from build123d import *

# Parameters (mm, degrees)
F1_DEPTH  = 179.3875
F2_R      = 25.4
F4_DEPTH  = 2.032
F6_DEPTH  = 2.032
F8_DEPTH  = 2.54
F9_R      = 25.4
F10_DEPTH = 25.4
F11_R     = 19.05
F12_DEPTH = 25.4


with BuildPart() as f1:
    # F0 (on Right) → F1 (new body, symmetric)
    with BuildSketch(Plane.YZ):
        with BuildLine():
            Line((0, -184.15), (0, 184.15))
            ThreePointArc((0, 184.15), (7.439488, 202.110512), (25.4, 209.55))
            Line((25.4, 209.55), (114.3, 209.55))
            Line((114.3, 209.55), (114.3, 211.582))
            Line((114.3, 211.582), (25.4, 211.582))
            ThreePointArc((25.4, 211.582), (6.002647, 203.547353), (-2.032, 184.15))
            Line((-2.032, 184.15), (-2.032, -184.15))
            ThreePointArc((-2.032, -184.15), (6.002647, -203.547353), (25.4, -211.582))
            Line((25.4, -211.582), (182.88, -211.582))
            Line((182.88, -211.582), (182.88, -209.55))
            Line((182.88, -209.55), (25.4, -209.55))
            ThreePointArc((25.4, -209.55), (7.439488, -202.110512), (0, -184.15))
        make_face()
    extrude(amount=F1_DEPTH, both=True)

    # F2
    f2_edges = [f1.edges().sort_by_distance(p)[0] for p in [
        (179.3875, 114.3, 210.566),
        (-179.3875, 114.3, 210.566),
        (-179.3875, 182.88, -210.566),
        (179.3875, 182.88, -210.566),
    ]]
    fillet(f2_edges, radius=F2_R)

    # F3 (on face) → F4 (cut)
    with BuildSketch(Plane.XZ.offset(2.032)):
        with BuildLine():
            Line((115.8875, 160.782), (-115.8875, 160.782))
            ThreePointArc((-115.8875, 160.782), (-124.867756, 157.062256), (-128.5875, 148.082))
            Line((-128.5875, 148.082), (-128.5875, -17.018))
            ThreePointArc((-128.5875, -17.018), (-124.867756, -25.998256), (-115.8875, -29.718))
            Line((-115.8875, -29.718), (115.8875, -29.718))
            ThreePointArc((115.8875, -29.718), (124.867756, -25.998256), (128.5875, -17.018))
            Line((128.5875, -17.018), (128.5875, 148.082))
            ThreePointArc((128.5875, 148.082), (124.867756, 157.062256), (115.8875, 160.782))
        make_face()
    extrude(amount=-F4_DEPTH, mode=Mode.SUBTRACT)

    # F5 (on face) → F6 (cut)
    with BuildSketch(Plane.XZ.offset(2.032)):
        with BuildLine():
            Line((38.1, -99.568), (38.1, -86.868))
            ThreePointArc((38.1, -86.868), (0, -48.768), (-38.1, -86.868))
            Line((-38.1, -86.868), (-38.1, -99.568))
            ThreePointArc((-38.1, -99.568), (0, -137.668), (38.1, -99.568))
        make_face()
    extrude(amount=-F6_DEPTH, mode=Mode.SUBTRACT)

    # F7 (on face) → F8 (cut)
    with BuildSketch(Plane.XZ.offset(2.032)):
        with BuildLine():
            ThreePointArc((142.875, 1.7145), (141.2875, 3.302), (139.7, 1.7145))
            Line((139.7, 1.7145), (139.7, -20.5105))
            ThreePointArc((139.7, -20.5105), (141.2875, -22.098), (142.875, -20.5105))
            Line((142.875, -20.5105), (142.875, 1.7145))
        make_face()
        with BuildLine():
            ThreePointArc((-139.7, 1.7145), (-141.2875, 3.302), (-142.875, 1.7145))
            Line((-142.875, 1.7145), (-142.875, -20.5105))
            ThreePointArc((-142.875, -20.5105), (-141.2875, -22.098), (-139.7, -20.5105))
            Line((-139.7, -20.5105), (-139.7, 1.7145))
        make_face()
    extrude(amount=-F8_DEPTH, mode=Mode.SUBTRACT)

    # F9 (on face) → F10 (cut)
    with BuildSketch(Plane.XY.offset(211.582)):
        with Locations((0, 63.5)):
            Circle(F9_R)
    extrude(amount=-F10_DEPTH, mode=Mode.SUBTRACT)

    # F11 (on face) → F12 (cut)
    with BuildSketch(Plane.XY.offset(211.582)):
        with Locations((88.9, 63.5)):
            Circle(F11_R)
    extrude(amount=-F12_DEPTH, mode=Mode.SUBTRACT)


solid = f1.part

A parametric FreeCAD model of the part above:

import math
import FreeCAD as App
import Part
import Sketcher
Q = App.Units.Quantity


def edges_at(feature, points):
    """Names of the edges that pass closest to the given points."""
    edges = feature.Shape.Edges
    near = lambda p: min(range(len(edges)), key=lambda i: edges[i].distToShape(Part.Vertex(*p))[0])
    return sorted({f"Edge{near(p) + 1}" for p in points})

doc = App.newDocument("Part")
body = doc.addObject("PartDesign::Body", "Body")

# Sketch on YZ plane
sketch1 = body.newObject("Sketcher::SketchObject", "Sketch")
sketch1.AttachmentSupport = (doc.getObject("YZ_Plane"), [""])
sketch1.MapMode = "FlatFace"
sketch1.addGeometry(Part.LineSegment(App.Vector(0, -184.15, 0), App.Vector(0, 184.15, 0)), False)
sketch1.addGeometry(Part.ArcOfCircle(Part.Circle(App.Vector(25.400001, 184.149999, 0), App.Vector(0, 0, 1), 25.400001), math.radians(90.000002), math.radians(179.999998)), False)
sketch1.addGeometry(Part.LineSegment(App.Vector(25.4, 209.55, 0), App.Vector(114.3, 209.55, 0)), False)
sketch1.addGeometry(Part.LineSegment(App.Vector(114.3, 209.55, 0), App.Vector(114.3, 211.582, 0)), False)
sketch1.addGeometry(Part.LineSegment(App.Vector(114.3, 211.582, 0), App.Vector(25.4, 211.582, 0)), False)
sketch1.addGeometry(Part.ArcOfCircle(Part.Circle(App.Vector(25.400001, 184.149999, 0), App.Vector(0, 0, 1), 27.432001), math.radians(90.000002), math.radians(179.999998)), False)
sketch1.addGeometry(Part.LineSegment(App.Vector(-2.032, 184.15, 0), App.Vector(-2.032, -184.15, 0)), False)
sketch1.addGeometry(Part.ArcOfCircle(Part.Circle(App.Vector(25.400001, -184.149999, 0), App.Vector(0, 0, 1), 27.432001), math.radians(-179.999998), math.radians(-90.000002)), False)
sketch1.addGeometry(Part.LineSegment(App.Vector(25.4, -211.582, 0), App.Vector(182.88, -211.582, 0)), False)
sketch1.addGeometry(Part.LineSegment(App.Vector(182.88, -211.582, 0), App.Vector(182.88, -209.55, 0)), False)
sketch1.addGeometry(Part.LineSegment(App.Vector(182.88, -209.55, 0), App.Vector(25.4, -209.55, 0)), False)
sketch1.addGeometry(Part.ArcOfCircle(Part.Circle(App.Vector(25.400001, -184.149999, 0), App.Vector(0, 0, 1), 25.400001), math.radians(-179.999998), math.radians(-90.000002)), False)
sketch1.addConstraint(Sketcher.Constraint("Tangent", 0, 2, 1, 2))
sketch1.addConstraint(Sketcher.Constraint("Tangent", 1, 1, 2, 1))
sketch1.addConstraint(Sketcher.Constraint("Coincident", 2, 2, 3, 1))
sketch1.addConstraint(Sketcher.Constraint("Coincident", 3, 2, 4, 1))
sketch1.addConstraint(Sketcher.Constraint("Tangent", 4, 2, 5, 1))
sketch1.addConstraint(Sketcher.Constraint("Tangent", 5, 2, 6, 1))
sketch1.addConstraint(Sketcher.Constraint("Tangent", 6, 2, 7, 1))
sketch1.addConstraint(Sketcher.Constraint("Tangent", 7, 2, 8, 1))
sketch1.addConstraint(Sketcher.Constraint("Coincident", 8, 2, 9, 1))
sketch1.addConstraint(Sketcher.Constraint("Coincident", 9, 2, 10, 1))
sketch1.addConstraint(Sketcher.Constraint("Tangent", 10, 2, 11, 2))
sketch1.addConstraint(Sketcher.Constraint("Tangent", 11, 1, 0, 1))
sketch1.addConstraint(Sketcher.Constraint("Vertical", 0))
sketch1.addConstraint(Sketcher.Constraint("Horizontal", 2))
sketch1.addConstraint(Sketcher.Constraint("Vertical", 3))
sketch1.addConstraint(Sketcher.Constraint("Horizontal", 4))
sketch1.addConstraint(Sketcher.Constraint("Vertical", 6))
sketch1.addConstraint(Sketcher.Constraint("Horizontal", 8))
sketch1.addConstraint(Sketcher.Constraint("Vertical", 9))
sketch1.addConstraint(Sketcher.Constraint("Horizontal", 10))
sketch1.addConstraint(Sketcher.Constraint("Coincident", 5, 3, 1, 3))
sketch1.addConstraint(Sketcher.Constraint("Coincident", 11, 3, 7, 3))
sketch1.addConstraint(Sketcher.Constraint("Equal", 5, 7))
sketch1.addConstraint(Sketcher.Constraint("Symmetric", 0, 2, 11, 1, -1, 1))
sketch1.addConstraint(Sketcher.Constraint("Radius", 1, Q("1 in")))
sketch1.addConstraint(Sketcher.Constraint("Radius", 5, Q("1.08 in")))
sketch1.addConstraint(Sketcher.Constraint("DistanceX", 2, 1, 2, 2, Q("3.5 in")))
sketch1.addConstraint(Sketcher.Constraint("DistanceX", 8, 1, 8, 2, Q("6.2 in")))
sketch1.addConstraint(Sketcher.Constraint("DistanceY", 0, 1, 0, 2, Q("14.5 in")))
pad1 = body.newObject("PartDesign::Pad", "Pad")
pad1.Profile = sketch1
pad1.Length = Q("14.125 in")
pad1.Midplane = True
doc.recompute()

fillet = body.newObject("PartDesign::Fillet", "Fillet")
fillet.Base = (pad1, edges_at(pad1, [
    (179.387, 114.3, 210.566),
    (-179.387, 114.3, 210.566),
    (-179.387, 182.88, -210.566),
    (179.387, 182.88, -210.566),
]))
fillet.Radius = Q("1 in")

# Sketch on XZ plane
sketch2 = body.newObject("Sketcher::SketchObject", "Sketch001")
sketch2.AttachmentSupport = (doc.getObject("XZ_Plane"), [""])
sketch2.MapMode = "FlatFace"
sketch2.AttachmentOffset = App.Placement(App.Vector(0, 0, 0.08 * 25.4), App.Rotation())
sketch2.addGeometry(Part.LineSegment(App.Vector(115.8875, 160.782, 0), App.Vector(-115.8875, 160.782, 0)), False)
sketch2.addGeometry(Part.ArcOfCircle(Part.Circle(App.Vector(-115.8875, 148.082, 0), App.Vector(0, 0, 1), 12.7), math.radians(90.000002), math.radians(179.999998)), False)
sketch2.addGeometry(Part.LineSegment(App.Vector(-128.5875, 148.082, 0), App.Vector(-128.5875, -17.018, 0)), False)
sketch2.addGeometry(Part.ArcOfCircle(Part.Circle(App.Vector(-115.8875, -17.018, 0), App.Vector(0, 0, 1), 12.7), math.radians(-179.999998), math.radians(-90.000002)), False)
sketch2.addGeometry(Part.LineSegment(App.Vector(-115.8875, -29.718, 0), App.Vector(115.8875, -29.718, 0)), False)
sketch2.addGeometry(Part.ArcOfCircle(Part.Circle(App.Vector(115.8875, -17.018, 0), App.Vector(0, 0, 1), 12.7), math.radians(-89.999998), math.radians(-0.000002)), False)
sketch2.addGeometry(Part.LineSegment(App.Vector(128.5875, -17.018, 0), App.Vector(128.5875, 148.082, 0)), False)
sketch2.addGeometry(Part.ArcOfCircle(Part.Circle(App.Vector(115.8875, 148.082, 0), App.Vector(0, 0, 1), 12.7), math.radians(0.000002), math.radians(89.999998)), False)
sketch2.addConstraint(Sketcher.Constraint("Tangent", 0, 2, 1, 1))
sketch2.addConstraint(Sketcher.Constraint("Tangent", 1, 2, 2, 1))
sketch2.addConstraint(Sketcher.Constraint("Tangent", 2, 2, 3, 1))
sketch2.addConstraint(Sketcher.Constraint("Tangent", 3, 2, 4, 1))
sketch2.addConstraint(Sketcher.Constraint("Tangent", 4, 2, 5, 1))
sketch2.addConstraint(Sketcher.Constraint("Tangent", 5, 2, 6, 1))
sketch2.addConstraint(Sketcher.Constraint("Tangent", 6, 2, 7, 1))
sketch2.addConstraint(Sketcher.Constraint("Tangent", 7, 2, 0, 1))
sketch2.addConstraint(Sketcher.Constraint("Horizontal", 0))
sketch2.addConstraint(Sketcher.Constraint("Vertical", 2))
sketch2.addConstraint(Sketcher.Constraint("Horizontal", 4))
sketch2.addConstraint(Sketcher.Constraint("Vertical", 6))
sketch2.addConstraint(Sketcher.Constraint("Equal", 1, 3))
sketch2.addConstraint(Sketcher.Constraint("Equal", 3, 5))
sketch2.addConstraint(Sketcher.Constraint("Equal", 5, 7))
sketch2.addConstraint(Sketcher.Constraint("Radius", 1, Q("0.5 in")))
sketch2.addConstraint(Sketcher.Constraint("DistanceY", 2, 2, 2, 1, Q("6.5 in")))
sketch2.addConstraint(Sketcher.Constraint("DistanceX", 0, 2, 0, 1, Q("9.125 in")))
sketch2.addConstraint(Sketcher.Constraint("DistanceY", -1, 1, 1, 3, Q("5.83 in")))
sketch2.addConstraint(Sketcher.Constraint("DistanceX", 1, 3, -1, 1, Q("4.5625 in")))
pocket1 = body.newObject("PartDesign::Pocket", "Pocket")
pocket1.Profile = sketch2
pocket1.Length = Q("0.08 in")

# Sketch on XZ plane
sketch3 = body.newObject("Sketcher::SketchObject", "Sketch002")
sketch3.AttachmentSupport = (doc.getObject("XZ_Plane"), [""])
sketch3.MapMode = "FlatFace"
sketch3.AttachmentOffset = App.Placement(App.Vector(0, 0, 0.08 * 25.4), App.Rotation())
sketch3.addGeometry(Part.LineSegment(App.Vector(38.1, -99.568, 0), App.Vector(38.1, -86.868, 0)), False)
sketch3.addGeometry(Part.ArcOfCircle(Part.Circle(App.Vector(0, -86.868, 0), App.Vector(0, 0, 1), 38.1), math.radians(0), math.radians(180)), False)
sketch3.addGeometry(Part.LineSegment(App.Vector(-38.1, -86.868, 0), App.Vector(-38.1, -99.568, 0)), False)
sketch3.addGeometry(Part.ArcOfCircle(Part.Circle(App.Vector(0, -99.568, 0), App.Vector(0, 0, 1), 38.1), math.radians(180), math.radians(360)), False)
sketch3.addConstraint(Sketcher.Constraint("Tangent", 0, 2, 1, 1))
sketch3.addConstraint(Sketcher.Constraint("Tangent", 1, 2, 2, 1))
sketch3.addConstraint(Sketcher.Constraint("Tangent", 2, 2, 3, 1))
sketch3.addConstraint(Sketcher.Constraint("Tangent", 3, 2, 0, 1))
sketch3.addConstraint(Sketcher.Constraint("Vertical", 0))
sketch3.addConstraint(Sketcher.Constraint("Vertical", 2))
sketch3.addConstraint(Sketcher.Constraint("PointOnObject", 1, 3, -2))
sketch3.addConstraint(Sketcher.Constraint("Radius", 1, Q("1.5 in")))
sketch3.addConstraint(Sketcher.Constraint("DistanceY", 0, 1, 0, 2, Q("0.5 in")))
sketch3.addConstraint(Sketcher.Constraint("DistanceY", 1, 3, -1, 1, Q("3.42 in")))
pocket2 = body.newObject("PartDesign::Pocket", "Pocket001")
pocket2.Profile = sketch3
pocket2.Length = Q("0.08 in")

# Sketch on XZ plane
sketch4 = body.newObject("Sketcher::SketchObject", "Sketch003")
sketch4.AttachmentSupport = (doc.getObject("XZ_Plane"), [""])
sketch4.MapMode = "FlatFace"
sketch4.AttachmentOffset = App.Placement(App.Vector(0, 0, 0.08 * 25.4), App.Rotation())
sketch4.addGeometry(Part.ArcOfCircle(Part.Circle(App.Vector(141.2875, 1.7145, 0), App.Vector(0, 0, 1), 1.5875), math.radians(0), math.radians(180)), False)
sketch4.addGeometry(Part.LineSegment(App.Vector(139.7, 1.7145, 0), App.Vector(139.7, -20.5105, 0)), False)
sketch4.addGeometry(Part.ArcOfCircle(Part.Circle(App.Vector(141.2875, -20.5105, 0), App.Vector(0, 0, 1), 1.5875), math.radians(180), math.radians(360)), False)
sketch4.addGeometry(Part.LineSegment(App.Vector(142.875, -20.5105, 0), App.Vector(142.875, 1.7145, 0)), False)
sketch4.addGeometry(Part.ArcOfCircle(Part.Circle(App.Vector(-141.2875, 1.7145, 0), App.Vector(0, 0, 1), 1.5875), math.radians(0), math.radians(180)), False)
sketch4.addGeometry(Part.LineSegment(App.Vector(-142.875, 1.7145, 0), App.Vector(-142.875, -20.5105, 0)), False)
sketch4.addGeometry(Part.ArcOfCircle(Part.Circle(App.Vector(-141.2875, -20.5105, 0), App.Vector(0, 0, 1), 1.5875), math.radians(180), math.radians(360)), False)
sketch4.addGeometry(Part.LineSegment(App.Vector(-139.7, -20.5105, 0), App.Vector(-139.7, 1.7145, 0)), False)
sketch4.addConstraint(Sketcher.Constraint("Tangent", 0, 2, 1, 1))
sketch4.addConstraint(Sketcher.Constraint("Tangent", 1, 2, 2, 1))
sketch4.addConstraint(Sketcher.Constraint("Tangent", 2, 2, 3, 1))
sketch4.addConstraint(Sketcher.Constraint("Tangent", 3, 2, 0, 1))
sketch4.addConstraint(Sketcher.Constraint("Tangent", 4, 2, 5, 1))
sketch4.addConstraint(Sketcher.Constraint("Tangent", 5, 2, 6, 1))
sketch4.addConstraint(Sketcher.Constraint("Tangent", 6, 2, 7, 1))
sketch4.addConstraint(Sketcher.Constraint("Tangent", 7, 2, 4, 1))
sketch4.addConstraint(Sketcher.Constraint("Vertical", 1))
sketch4.addConstraint(Sketcher.Constraint("Vertical", 3))
sketch4.addConstraint(Sketcher.Constraint("Vertical", 5))
sketch4.addConstraint(Sketcher.Constraint("Vertical", 7))
sketch4.addConstraint(Sketcher.Constraint("Equal", 2, 4))
sketch4.addConstraint(Sketcher.Constraint("Symmetric", 0, 3, 4, 3, -2))
sketch4.addConstraint(Sketcher.Constraint("Horizontal", 2, 3, 6, 3))
sketch4.addConstraint(Sketcher.Constraint("Radius", 0, Q("0.0625 in")))
sketch4.addConstraint(Sketcher.Constraint("DistanceX", 6, 2, 1, 2, Q("11 in")))
sketch4.addConstraint(Sketcher.Constraint("DistanceY", 1, 2, 1, 1, Q("0.875 in")))
sketch4.addConstraint(Sketcher.Constraint("DistanceY", -1, 1, 0, 3, Q("0.0675 in")))
pocket3 = body.newObject("PartDesign::Pocket", "Pocket002")
pocket3.Profile = sketch4
pocket3.Length = Q("0.1 in")

# Sketch on XY plane
sketch5 = body.newObject("Sketcher::SketchObject", "Sketch004")
sketch5.AttachmentSupport = (doc.getObject("XY_Plane"), [""])
sketch5.MapMode = "FlatFace"
sketch5.AttachmentOffset = App.Placement(App.Vector(0, 0, 8.33 * 25.4), App.Rotation())
sketch5.addGeometry(Part.Circle(App.Vector(0, 63.5, 0), App.Vector(0, 0, 1), 25.4), False)
sketch5.addConstraint(Sketcher.Constraint("PointOnObject", 0, 3, -2))
sketch5.addConstraint(Sketcher.Constraint("Diameter", 0, Q("2 in")))
sketch5.addConstraint(Sketcher.Constraint("DistanceY", -1, 1, 0, 3, Q("2.5 in")))
pocket4 = body.newObject("PartDesign::Pocket", "Pocket003")
pocket4.Profile = sketch5
pocket4.Length = Q("1 in")

# Sketch on XY plane
sketch6 = body.newObject("Sketcher::SketchObject", "Sketch005")
sketch6.AttachmentSupport = (doc.getObject("XY_Plane"), [""])
sketch6.MapMode = "FlatFace"
sketch6.AttachmentOffset = App.Placement(App.Vector(0, 0, 8.33 * 25.4), App.Rotation())
sketch6.addGeometry(Part.Circle(App.Vector(88.9, 63.5, 0), App.Vector(0, 0, 1), 19.05), False)
sketch6.addConstraint(Sketcher.Constraint("Diameter", 0, Q("1.5 in")))
sketch6.addConstraint(Sketcher.Constraint("DistanceX", -1, 1, 0, 3, Q("3.5 in")))
sketch6.addConstraint(Sketcher.Constraint("DistanceY", -1, 1, 0, 3, Q("2.5 in")))
pocket5 = body.newObject("PartDesign::Pocket", "Pocket004")
pocket5.Profile = sketch6
pocket5.Length = Q("1 in")

doc.recompute()
